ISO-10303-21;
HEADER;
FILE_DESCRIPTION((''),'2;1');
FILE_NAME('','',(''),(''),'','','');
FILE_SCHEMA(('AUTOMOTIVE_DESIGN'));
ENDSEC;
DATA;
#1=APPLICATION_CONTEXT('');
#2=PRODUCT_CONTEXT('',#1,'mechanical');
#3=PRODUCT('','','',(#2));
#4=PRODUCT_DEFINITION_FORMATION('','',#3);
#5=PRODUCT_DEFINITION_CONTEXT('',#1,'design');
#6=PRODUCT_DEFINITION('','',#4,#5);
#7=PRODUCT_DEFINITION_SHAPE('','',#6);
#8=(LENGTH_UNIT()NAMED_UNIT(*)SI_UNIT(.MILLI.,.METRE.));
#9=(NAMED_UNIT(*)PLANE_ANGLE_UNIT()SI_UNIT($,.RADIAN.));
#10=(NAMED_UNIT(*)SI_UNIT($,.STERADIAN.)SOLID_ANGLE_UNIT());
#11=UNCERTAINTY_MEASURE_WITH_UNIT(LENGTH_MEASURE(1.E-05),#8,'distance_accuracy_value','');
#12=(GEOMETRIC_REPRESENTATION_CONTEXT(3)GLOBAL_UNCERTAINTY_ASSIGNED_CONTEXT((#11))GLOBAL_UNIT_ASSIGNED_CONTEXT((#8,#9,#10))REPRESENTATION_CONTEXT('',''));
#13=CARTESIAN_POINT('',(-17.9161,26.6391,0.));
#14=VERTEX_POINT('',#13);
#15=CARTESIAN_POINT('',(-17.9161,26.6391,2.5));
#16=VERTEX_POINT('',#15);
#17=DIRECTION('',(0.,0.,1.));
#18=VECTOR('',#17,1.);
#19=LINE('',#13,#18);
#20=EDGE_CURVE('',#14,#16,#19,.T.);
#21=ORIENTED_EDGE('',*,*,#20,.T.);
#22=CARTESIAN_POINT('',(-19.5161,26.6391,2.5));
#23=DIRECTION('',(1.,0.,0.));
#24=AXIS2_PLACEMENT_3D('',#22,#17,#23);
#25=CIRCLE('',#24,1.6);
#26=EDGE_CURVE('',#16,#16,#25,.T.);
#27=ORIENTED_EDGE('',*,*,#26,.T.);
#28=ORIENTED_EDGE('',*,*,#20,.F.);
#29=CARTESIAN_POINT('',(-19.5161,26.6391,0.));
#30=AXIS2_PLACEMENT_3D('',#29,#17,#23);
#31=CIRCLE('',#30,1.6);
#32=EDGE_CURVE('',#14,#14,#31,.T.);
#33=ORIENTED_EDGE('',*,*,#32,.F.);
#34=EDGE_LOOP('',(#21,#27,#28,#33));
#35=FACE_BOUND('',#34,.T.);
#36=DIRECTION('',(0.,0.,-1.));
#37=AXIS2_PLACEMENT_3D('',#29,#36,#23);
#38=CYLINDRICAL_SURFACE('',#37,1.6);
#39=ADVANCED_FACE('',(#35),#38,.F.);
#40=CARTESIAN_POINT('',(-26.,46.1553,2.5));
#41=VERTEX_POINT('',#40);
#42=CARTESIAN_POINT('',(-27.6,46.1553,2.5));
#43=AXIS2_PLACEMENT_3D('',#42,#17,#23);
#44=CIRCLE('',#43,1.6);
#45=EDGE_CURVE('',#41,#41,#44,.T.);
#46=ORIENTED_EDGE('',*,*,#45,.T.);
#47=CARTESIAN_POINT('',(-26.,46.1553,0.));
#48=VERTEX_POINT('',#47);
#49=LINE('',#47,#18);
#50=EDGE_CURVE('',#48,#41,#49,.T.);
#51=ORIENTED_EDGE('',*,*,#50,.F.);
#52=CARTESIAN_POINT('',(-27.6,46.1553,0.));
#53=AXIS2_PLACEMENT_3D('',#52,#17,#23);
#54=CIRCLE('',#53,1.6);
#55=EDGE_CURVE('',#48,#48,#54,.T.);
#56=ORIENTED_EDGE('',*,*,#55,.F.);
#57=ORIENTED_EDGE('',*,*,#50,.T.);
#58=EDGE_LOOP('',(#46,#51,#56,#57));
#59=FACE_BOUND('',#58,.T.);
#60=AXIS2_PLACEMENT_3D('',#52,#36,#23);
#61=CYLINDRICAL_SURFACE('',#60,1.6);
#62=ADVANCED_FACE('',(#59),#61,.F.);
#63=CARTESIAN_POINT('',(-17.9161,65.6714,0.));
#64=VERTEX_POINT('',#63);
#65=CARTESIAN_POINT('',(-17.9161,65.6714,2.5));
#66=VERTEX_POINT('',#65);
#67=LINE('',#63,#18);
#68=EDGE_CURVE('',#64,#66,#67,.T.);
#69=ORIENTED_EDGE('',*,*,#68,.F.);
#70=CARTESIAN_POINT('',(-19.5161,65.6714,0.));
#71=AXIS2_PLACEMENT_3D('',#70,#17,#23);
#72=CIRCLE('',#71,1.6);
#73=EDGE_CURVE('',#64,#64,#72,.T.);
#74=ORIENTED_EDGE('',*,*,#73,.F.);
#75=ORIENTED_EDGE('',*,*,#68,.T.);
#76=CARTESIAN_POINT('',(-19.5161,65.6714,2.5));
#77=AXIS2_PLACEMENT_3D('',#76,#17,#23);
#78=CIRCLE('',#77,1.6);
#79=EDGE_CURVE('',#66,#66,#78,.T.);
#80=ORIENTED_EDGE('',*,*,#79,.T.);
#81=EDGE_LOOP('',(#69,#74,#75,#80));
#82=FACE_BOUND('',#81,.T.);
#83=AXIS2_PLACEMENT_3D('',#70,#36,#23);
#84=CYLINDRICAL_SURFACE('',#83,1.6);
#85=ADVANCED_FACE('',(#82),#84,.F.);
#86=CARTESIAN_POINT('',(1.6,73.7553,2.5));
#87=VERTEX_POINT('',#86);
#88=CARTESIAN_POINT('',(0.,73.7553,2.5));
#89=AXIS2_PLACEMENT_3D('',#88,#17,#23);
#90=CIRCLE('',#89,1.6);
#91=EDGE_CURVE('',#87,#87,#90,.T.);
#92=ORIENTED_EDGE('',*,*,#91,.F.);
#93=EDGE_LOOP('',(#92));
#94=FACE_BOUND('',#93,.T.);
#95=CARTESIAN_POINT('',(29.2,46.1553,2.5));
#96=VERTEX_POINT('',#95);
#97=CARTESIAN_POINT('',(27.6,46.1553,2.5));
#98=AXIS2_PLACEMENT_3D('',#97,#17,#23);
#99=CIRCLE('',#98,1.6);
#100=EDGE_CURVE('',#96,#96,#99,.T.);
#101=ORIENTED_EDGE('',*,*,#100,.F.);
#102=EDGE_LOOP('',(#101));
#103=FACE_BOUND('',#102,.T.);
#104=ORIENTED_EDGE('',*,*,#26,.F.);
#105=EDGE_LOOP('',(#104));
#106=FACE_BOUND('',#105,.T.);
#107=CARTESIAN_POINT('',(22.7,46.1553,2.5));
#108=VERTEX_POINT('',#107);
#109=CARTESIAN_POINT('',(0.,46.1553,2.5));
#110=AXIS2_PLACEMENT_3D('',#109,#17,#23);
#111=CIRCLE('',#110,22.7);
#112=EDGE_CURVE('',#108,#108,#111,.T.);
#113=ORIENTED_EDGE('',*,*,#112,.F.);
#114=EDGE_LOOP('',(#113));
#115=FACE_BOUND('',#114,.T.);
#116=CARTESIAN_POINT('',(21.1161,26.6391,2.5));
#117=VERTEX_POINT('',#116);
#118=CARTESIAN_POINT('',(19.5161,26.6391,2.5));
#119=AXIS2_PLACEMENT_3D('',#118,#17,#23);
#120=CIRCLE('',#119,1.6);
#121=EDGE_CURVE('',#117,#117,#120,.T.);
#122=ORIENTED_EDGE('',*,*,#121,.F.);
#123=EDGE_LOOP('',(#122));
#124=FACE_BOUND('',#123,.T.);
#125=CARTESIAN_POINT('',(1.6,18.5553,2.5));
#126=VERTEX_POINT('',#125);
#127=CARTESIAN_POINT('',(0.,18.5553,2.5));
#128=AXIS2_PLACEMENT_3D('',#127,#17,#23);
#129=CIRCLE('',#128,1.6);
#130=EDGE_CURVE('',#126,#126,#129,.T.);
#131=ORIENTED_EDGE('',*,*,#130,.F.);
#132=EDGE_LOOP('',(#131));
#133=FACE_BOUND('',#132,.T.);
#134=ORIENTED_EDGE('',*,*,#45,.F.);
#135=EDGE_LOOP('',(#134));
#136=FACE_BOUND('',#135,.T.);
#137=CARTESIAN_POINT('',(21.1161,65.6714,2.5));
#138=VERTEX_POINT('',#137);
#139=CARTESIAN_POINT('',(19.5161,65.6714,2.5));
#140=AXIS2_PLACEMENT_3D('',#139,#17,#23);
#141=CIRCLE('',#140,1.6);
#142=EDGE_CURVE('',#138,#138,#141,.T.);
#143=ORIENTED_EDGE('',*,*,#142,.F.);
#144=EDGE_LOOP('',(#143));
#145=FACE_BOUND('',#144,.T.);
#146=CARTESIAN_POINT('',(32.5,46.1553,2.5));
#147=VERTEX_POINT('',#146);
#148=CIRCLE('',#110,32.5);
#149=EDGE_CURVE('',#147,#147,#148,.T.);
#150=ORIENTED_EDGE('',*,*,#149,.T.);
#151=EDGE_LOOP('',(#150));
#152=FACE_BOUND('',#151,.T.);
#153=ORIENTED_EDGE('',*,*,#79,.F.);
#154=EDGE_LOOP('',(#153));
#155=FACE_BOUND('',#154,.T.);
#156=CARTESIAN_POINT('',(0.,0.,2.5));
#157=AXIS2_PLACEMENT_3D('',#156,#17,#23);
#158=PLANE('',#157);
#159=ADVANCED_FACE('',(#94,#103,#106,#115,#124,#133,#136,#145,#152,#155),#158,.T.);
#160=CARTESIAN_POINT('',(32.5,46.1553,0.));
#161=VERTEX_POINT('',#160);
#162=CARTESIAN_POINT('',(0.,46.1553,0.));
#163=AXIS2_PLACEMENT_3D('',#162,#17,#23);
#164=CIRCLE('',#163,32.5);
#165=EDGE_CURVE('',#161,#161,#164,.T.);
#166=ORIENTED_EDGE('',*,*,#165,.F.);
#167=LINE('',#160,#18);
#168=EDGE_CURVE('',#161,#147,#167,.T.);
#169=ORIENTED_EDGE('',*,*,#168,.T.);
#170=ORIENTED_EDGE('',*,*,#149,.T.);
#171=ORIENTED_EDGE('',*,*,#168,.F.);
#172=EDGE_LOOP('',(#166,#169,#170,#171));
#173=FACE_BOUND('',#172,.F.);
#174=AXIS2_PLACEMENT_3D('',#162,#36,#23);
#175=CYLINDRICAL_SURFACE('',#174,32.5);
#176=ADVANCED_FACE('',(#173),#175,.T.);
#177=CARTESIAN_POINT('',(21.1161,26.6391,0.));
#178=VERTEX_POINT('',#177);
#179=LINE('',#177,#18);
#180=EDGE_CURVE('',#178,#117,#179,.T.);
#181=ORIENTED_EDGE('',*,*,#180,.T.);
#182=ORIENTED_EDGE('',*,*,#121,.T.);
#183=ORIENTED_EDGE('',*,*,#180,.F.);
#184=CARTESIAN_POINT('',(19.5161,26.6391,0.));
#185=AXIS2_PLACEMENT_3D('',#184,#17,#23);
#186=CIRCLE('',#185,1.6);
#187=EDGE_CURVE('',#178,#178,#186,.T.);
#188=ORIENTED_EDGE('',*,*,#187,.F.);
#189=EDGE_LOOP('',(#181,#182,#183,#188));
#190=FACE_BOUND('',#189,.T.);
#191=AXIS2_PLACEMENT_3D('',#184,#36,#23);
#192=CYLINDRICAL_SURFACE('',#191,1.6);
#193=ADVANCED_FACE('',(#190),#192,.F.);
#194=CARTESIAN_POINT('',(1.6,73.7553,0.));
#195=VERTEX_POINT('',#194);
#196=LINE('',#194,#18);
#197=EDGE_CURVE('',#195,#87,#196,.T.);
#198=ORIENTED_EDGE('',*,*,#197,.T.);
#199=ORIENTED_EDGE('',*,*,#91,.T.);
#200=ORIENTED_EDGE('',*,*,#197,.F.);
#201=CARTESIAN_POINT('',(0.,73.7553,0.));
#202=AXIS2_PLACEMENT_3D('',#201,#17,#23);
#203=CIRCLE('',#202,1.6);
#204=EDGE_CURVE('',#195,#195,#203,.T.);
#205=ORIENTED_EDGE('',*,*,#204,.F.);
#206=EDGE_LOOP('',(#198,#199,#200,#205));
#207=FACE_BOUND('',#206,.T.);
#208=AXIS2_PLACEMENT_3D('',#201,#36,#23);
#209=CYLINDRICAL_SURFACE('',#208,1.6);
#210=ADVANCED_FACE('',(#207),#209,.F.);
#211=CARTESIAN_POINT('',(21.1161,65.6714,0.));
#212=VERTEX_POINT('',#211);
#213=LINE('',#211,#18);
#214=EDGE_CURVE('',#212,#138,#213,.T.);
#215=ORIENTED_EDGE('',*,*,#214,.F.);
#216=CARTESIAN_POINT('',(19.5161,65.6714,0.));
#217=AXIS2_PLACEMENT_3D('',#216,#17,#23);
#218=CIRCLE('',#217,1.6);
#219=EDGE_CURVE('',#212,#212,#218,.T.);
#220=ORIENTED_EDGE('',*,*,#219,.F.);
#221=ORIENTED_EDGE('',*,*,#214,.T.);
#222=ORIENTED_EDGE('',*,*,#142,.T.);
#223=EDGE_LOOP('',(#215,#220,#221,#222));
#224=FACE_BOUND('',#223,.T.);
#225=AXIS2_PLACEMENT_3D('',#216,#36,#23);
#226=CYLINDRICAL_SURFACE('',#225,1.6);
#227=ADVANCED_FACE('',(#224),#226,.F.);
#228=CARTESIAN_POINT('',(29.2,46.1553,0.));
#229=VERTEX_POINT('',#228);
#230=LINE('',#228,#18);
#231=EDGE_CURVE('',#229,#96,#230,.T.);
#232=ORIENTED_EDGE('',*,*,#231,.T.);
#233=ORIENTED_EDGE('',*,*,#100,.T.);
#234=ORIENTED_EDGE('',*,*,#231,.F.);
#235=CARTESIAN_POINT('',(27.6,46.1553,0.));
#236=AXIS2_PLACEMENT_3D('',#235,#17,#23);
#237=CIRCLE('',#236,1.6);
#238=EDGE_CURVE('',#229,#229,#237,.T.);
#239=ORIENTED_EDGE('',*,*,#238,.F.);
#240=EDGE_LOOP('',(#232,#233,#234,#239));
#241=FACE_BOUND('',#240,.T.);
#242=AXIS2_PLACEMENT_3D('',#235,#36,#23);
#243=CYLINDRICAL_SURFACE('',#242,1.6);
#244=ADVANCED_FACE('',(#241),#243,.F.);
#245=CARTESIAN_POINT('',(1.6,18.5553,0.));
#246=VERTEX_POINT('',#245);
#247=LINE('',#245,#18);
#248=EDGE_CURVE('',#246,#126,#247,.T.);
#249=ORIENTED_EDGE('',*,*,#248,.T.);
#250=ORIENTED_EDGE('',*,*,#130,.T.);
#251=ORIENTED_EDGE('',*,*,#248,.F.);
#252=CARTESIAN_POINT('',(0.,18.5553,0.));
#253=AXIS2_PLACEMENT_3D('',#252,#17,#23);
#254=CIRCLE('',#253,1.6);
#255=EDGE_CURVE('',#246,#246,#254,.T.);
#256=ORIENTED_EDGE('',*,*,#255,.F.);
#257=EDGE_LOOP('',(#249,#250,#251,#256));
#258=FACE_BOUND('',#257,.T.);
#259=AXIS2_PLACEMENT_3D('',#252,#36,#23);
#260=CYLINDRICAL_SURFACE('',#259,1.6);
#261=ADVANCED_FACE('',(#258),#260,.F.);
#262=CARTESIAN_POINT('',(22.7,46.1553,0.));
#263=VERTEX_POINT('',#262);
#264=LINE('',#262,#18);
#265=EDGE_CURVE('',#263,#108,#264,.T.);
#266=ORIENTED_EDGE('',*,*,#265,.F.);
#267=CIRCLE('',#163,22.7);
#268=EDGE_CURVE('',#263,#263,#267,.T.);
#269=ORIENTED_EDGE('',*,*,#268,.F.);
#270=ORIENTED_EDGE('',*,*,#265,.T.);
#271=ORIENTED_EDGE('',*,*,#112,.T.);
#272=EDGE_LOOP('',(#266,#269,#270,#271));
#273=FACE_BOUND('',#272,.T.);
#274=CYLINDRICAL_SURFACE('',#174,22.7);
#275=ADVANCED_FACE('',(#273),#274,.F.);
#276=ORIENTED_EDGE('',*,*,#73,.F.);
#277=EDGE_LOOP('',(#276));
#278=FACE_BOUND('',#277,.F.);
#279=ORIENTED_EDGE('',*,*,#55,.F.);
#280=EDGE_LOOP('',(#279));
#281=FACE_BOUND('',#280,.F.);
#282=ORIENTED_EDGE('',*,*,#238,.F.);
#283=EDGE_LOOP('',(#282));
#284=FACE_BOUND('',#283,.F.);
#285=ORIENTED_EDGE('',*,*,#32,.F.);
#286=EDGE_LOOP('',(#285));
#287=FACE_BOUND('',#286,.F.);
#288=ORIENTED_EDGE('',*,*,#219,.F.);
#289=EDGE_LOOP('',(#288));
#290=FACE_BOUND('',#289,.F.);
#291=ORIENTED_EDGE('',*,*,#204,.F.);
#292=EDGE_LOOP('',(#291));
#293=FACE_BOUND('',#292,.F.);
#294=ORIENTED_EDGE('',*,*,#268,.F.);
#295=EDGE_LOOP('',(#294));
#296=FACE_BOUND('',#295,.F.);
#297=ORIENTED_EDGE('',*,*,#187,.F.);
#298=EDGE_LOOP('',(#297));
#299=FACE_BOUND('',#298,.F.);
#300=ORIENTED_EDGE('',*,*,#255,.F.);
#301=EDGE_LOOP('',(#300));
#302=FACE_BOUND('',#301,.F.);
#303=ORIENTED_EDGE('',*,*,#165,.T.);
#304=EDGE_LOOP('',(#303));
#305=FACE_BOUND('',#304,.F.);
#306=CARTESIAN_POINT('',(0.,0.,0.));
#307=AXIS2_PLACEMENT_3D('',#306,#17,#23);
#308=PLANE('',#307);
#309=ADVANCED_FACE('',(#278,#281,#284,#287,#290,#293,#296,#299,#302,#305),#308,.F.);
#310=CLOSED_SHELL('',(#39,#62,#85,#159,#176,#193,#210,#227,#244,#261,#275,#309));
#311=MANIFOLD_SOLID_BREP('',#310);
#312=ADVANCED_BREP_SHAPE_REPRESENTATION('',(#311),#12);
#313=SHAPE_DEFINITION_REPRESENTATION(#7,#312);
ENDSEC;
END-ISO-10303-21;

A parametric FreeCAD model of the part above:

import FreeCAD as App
import Part
import Sketcher
from FreeCAD import Vector

doc = App.newDocument("Part")
body = doc.addObject("PartDesign::Body", "Body")

sketch1 = doc.addObject("Sketcher::SketchObject", "Sketch")
body.addObject(sketch1)
sketch1.AttachmentSupport = (doc.XY_Plane, [""])
sketch1.MapMode = "FlatFace"
sketch1.addGeometry(Part.Circle(Vector(0, 46.2, 0), Vector(0, 0, 1), 32.5), False)
sketch1.addGeometry(Part.Circle(Vector(-19.5, 26.6, 0), Vector(0, 0, 1), 1.6), False)
sketch1.addGeometry(Part.Circle(Vector(-27.6, 46.2, 0), Vector(0, 0, 1), 1.6), False)
sketch1.addGeometry(Part.Circle(Vector(-19.5, 65.7, 0), Vector(0, 0, 1), 1.6), False)
sketch1.addGeometry(Part.Circle(Vector(0, 18.6, 0), Vector(0, 0, 1), 1.6), False)
sketch1.addGeometry(Part.Circle(Vector(19.5, 65.7, 0), Vector(0, 0, 1), 1.6), False)
sketch1.addGeometry(Part.Circle(Vector(19.5, 26.6, 0), Vector(0, 0, 1), 1.6), False)
sketch1.addGeometry(Part.Circle(Vector(0, 46.2, 0), Vector(0, 0, 1), 22.7), False)
sketch1.addGeometry(Part.Circle(Vector(0, 73.8, 0), Vector(0, 0, 1), 1.6), False)
sketch1.addGeometry(Part.Circle(Vector(27.6, 46.2, 0), Vector(0, 0, 1), 1.6), False)
sketch1.addConstraint(Sketcher.Constraint("Coincident", 7, 3, 0, 3))
sketch1.addConstraint(Sketcher.Constraint("Equal", 1, 2))
sketch1.addConstraint(Sketcher.Constraint("Equal", 2, 3))
sketch1.addConstraint(Sketcher.Constraint("Equal", 3, 4))
sketch1.addConstraint(Sketcher.Constraint("Equal", 4, 5))
sketch1.addConstraint(Sketcher.Constraint("Equal", 5, 6))
sketch1.addConstraint(Sketcher.Constraint("Equal", 6, 8))
sketch1.addConstraint(Sketcher.Constraint("Equal", 8, 9))
sketch1.addConstraint(Sketcher.Constraint("Symmetric", 3, 3, 5, 3, -2))
sketch1.addConstraint(Sketcher.Constraint("Symmetric", 1, 3, 6, 3, -2))
sketch1.addConstraint(Sketcher.Constraint("Symmetric", 2, 3, 9, 3, -2))
sketch1.addConstraint(Sketcher.Constraint("PointOnObject", 0, 3, -2))
sketch1.addConstraint(Sketcher.Constraint("PointOnObject", 4, 3, -2))
sketch1.addConstraint(Sketcher.Constraint("PointOnObject", 8, 3, -2))
sketch1.addConstraint(Sketcher.Constraint("Horizontal", 0, 3, 2, 3))
sketch1.addConstraint(Sketcher.Constraint("Vertical", 1, 3, 3, 3))
sketch1.addConstraint(Sketcher.Constraint("Diameter", 0, 65.0))
sketch1.addConstraint(Sketcher.Constraint("Diameter", 1, 3.2))
sketch1.addConstraint(Sketcher.Constraint("Diameter", 7, 45.4))
sketch1.addConstraint(Sketcher.Constraint("DistanceX", 2, 3, -1, 1, 27.6))
sketch1.addConstraint(Sketcher.Constraint("DistanceY", 4, 3, 0, 3, 27.6))
sketch1.addConstraint(Sketcher.Constraint("DistanceY", 0, 3, 8, 3, 27.6))
sketch1.addConstraint(Sketcher.Constraint("DistanceX", 1, 3, -1, 1, 19.516))
sketch1.addConstraint(Sketcher.Constraint("DistanceY", -1, 1, 1, 3, 26.639))
sketch1.addConstraint(Sketcher.Constraint("DistanceY", 2, 3, 3, 3, 19.516))
sketch1.addConstraint(Sketcher.Constraint("DistanceY", -1, 1, 0, 3, 46.1553))
pad1 = doc.addObject("PartDesign::Pad", "Pad")
body.addObject(pad1)
pad1.Profile = sketch1
pad1.Length = 2.5

doc.recompute()
